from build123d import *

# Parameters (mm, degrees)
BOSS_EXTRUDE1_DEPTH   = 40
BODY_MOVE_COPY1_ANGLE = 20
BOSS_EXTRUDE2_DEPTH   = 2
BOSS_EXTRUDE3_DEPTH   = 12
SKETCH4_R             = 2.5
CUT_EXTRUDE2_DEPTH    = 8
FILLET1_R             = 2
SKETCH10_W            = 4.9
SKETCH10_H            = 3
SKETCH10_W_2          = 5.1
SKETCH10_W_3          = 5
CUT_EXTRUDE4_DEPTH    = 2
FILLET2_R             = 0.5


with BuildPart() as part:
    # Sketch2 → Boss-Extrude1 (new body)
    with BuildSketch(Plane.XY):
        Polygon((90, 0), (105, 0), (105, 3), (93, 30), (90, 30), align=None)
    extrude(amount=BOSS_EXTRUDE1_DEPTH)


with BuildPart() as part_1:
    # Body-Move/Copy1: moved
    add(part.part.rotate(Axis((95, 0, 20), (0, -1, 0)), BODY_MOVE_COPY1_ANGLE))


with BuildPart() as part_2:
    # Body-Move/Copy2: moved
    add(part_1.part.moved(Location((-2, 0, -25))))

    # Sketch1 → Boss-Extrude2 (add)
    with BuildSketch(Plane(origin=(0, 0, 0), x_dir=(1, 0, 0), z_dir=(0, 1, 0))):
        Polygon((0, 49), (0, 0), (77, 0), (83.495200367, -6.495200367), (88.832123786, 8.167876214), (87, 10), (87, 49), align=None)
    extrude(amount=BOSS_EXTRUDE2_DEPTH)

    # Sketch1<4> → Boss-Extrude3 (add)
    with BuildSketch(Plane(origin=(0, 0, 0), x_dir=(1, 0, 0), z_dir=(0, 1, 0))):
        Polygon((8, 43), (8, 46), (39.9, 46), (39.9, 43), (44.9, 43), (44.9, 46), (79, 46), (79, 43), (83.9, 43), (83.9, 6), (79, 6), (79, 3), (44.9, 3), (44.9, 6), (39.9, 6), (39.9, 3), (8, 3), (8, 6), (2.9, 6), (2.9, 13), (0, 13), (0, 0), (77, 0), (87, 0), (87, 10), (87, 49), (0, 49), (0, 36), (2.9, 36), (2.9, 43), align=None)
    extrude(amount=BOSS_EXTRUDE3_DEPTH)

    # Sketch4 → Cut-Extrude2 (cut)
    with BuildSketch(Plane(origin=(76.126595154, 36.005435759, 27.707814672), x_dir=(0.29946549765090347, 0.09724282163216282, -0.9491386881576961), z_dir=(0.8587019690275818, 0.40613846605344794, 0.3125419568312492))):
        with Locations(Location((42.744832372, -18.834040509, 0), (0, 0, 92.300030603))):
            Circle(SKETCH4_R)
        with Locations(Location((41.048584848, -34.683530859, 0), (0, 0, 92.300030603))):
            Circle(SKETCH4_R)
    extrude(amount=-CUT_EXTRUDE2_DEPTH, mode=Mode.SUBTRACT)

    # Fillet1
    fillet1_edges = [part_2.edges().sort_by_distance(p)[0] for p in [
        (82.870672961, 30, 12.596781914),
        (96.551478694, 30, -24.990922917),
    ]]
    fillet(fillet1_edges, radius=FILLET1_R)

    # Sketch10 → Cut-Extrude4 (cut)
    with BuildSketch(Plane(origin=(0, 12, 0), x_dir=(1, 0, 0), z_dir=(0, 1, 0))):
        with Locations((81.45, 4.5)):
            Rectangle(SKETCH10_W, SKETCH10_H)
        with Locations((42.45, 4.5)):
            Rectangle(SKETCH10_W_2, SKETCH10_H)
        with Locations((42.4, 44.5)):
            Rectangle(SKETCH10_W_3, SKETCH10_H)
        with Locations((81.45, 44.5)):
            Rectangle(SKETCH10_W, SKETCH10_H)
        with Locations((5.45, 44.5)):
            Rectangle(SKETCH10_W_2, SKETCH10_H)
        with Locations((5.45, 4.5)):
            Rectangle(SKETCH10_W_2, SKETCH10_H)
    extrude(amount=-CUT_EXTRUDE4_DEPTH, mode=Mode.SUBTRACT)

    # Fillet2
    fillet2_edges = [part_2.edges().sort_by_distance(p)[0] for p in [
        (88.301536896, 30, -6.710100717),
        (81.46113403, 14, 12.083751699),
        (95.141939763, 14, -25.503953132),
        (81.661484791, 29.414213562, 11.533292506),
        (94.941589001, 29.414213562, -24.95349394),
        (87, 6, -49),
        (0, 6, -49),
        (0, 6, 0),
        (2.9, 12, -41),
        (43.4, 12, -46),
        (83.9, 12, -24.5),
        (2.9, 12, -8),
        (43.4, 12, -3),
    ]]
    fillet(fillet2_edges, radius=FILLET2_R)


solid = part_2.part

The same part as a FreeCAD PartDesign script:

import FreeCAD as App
import Part
import Sketcher
from FreeCAD import Vector
Q = App.Units.Quantity


def edges_at(feature, points):
    """Names of the edges that pass closest to the given points."""
    edges = feature.Shape.Edges
    near = lambda p: min(range(len(edges)), key=lambda i: edges[i].distToShape(Part.Vertex(*p))[0])
    return sorted({f"Edge{near(p) + 1}" for p in points})

doc = App.newDocument("Part")
body = doc.addObject("PartDesign::Body", "Body")

sketch1 = body.newObject("Sketcher::SketchObject", "Sketch")
sketch1.AttachmentSupport = (doc.getObject("XY_Plane"), [""])
sketch1.MapMode = "FlatFace"
sketch1.addGeometry([
    Part.LineSegment(Vector(90, 0, 0), Vector(105, 0, 0)),
    Part.LineSegment(Vector(105, 0, 0), Vector(105, 3, 0)),
    Part.LineSegment(Vector(105, 3, 0), Vector(93, 30, 0)),
    Part.LineSegment(Vector(93, 30, 0), Vector(90, 30, 0)),
    Part.LineSegment(Vector(90, 30, 0), Vector(90, 0, 0)),
], False)
sketch1.addConstraint([
    Sketcher.Constraint("Coincident", 0, 2, 1, 1),
    Sketcher.Constraint("Coincident", 1, 2, 2, 1),
    Sketcher.Constraint("Coincident", 2, 2, 3, 1),
    Sketcher.Constraint("Coincident", 3, 2, 4, 1),
    Sketcher.Constraint("Coincident", 4, 2, 0, 1),
    Sketcher.Constraint("Horizontal", 0),
    Sketcher.Constraint("Vertical", 1),
    Sketcher.Constraint("Horizontal", 3),
    Sketcher.Constraint("Vertical", 4),
    Sketcher.Constraint("PointOnObject", 0, 2, -1),
    Sketcher.Constraint("Equal", 3, 1),
    Sketcher.Constraint("DistanceX", 0, 1, 0, 2, Q("15 mm")),
    Sketcher.Constraint("DistanceX", 3, 2, 3, 1, Q("3 mm")),
    Sketcher.Constraint("DistanceY", 4, 2, 4, 1, Q("30 mm")),
    Sketcher.Constraint("DistanceX", -1, 1, 0, 2, Q("105 mm")),
])
pad1 = body.newObject("PartDesign::Pad", "Pad")
pad1.Profile = sketch1
pad1.Length = 40
body2 = doc.addObject("PartDesign::Body", "Body001")
doc.recompute()

body.Placement = App.Placement(Vector(12.569604, 0, -31.285766), App.Rotation(Vector(0, -1, 0), 20))
boolean = body2.newObject("PartDesign::Boolean", "Boolean")
boolean.Type = "Fuse"
boolean.addObjects([body])
body3 = doc.addObject("PartDesign::Body", "Body002")
doc.recompute()

body2.Placement = App.Placement(Vector(-2, 0, -25), App.Rotation(Vector(0, 0, 1), 0))
boolean2 = body3.newObject("PartDesign::Boolean", "Boolean001")
boolean2.Type = "Fuse"
boolean2.addObjects([body2])

sketch2 = body3.newObject("Sketcher::SketchObject", "Sketch001")
sketch2.AttachmentSupport = (doc.getObject("XZ_Plane002"), [""])
sketch2.MapMode = "FlatFace"
sketch2.addGeometry([
    Part.LineSegment(Vector(0, -49, 0), Vector(0, 0, 0)),
    Part.LineSegment(Vector(0, 0, 0), Vector(77, 0, 0)),
    Part.LineSegment(Vector(77, 0, 0), Vector(83.5, 6.5, 0)),
    Part.LineSegment(Vector(83.5, 6.5, 0), Vector(88.8, -8.2, 0)),
    Part.LineSegment(Vector(88.8, -8.2, 0), Vector(87, -10, 0)),
    Part.LineSegment(Vector(87, -10, 0), Vector(87, -49, 0)),
    Part.LineSegment(Vector(87, -49, 0), Vector(0, -49, 0)),
], False)
sketch2.addConstraint([
    Sketcher.Constraint("Coincident", 0, 2, 1, 1),
    Sketcher.Constraint("Coincident", 1, 2, 2, 1),
    Sketcher.Constraint("Coincident", 2, 2, 3, 1),
    Sketcher.Constraint("Coincident", 3, 2, 4, 1),
    Sketcher.Constraint("Coincident", 4, 2, 5, 1),
    Sketcher.Constraint("Coincident", 5, 2, 6, 1),
    Sketcher.Constraint("Coincident", 6, 2, 0, 1),
    Sketcher.Constraint("Vertical", 0),
    Sketcher.Constraint("Horizontal", 1),
    Sketcher.Constraint("Vertical", 5),
    Sketcher.Constraint("Horizontal", 6),
    Sketcher.Constraint("Coincident", 0, 2, -1, 1),
    Sketcher.Constraint("Parallel", 2, 4),
    Sketcher.Constraint("DistanceX", 1, 1, 1, 2, Q("77 mm")),
    Sketcher.Constraint("DistanceX", 6, 2, 6, 1, Q("87 mm")),
    Sketcher.Constraint("DistanceY", 0, 1, 0, 2, Q("49 mm")),
    Sketcher.Constraint("DistanceY", 5, 2, 5, 1, Q("39 mm")),
    Sketcher.Constraint("Angle", 2, Q("45 deg")),
    Sketcher.Constraint("Angle", 3, Q("-70 deg")),
    Sketcher.Constraint("Distance", 2, Q("9.1856 mm")),
])
pad2 = body3.newObject("PartDesign::Pad", "Pad001")
pad2.Profile = sketch2
pad2.Length = 2
pad2.Reversed = True

sketch3 = body3.newObject("Sketcher::SketchObject", "Sketch002")
sketch3.AttachmentSupport = (doc.getObject("XZ_Plane002"), [""])
sketch3.MapMode = "FlatFace"
sketch3.addGeometry([
    Part.LineSegment(Vector(8, -43, 0), Vector(8, -46, 0)),
    Part.LineSegment(Vector(8, -46, 0), Vector(39.9, -46, 0)),
    Part.LineSegment(Vector(39.9, -46, 0), Vector(39.9, -43, 0)),
    Part.LineSegment(Vector(39.9, -43, 0), Vector(44.9, -43, 0)),
    Part.LineSegment(Vector(44.9, -43, 0), Vector(44.9, -46, 0)),
    Part.LineSegment(Vector(44.9, -46, 0), Vector(79, -46, 0)),
    Part.LineSegment(Vector(79, -46, 0), Vector(79, -43, 0)),
    Part.LineSegment(Vector(79, -43, 0), Vector(83.9, -43, 0)),
    Part.LineSegment(Vector(83.9, -43, 0), Vector(83.9, -6, 0)),
    Part.LineSegment(Vector(83.9, -6, 0), Vector(79, -6, 0)),
    Part.LineSegment(Vector(79, -6, 0), Vector(79, -3, 0)),
    Part.LineSegment(Vector(79, -3, 0), Vector(44.9, -3, 0)),
    Part.LineSegment(Vector(44.9, -3, 0), Vector(44.9, -6, 0)),
    Part.LineSegment(Vector(44.9, -6, 0), Vector(39.9, -6, 0)),
    Part.LineSegment(Vector(39.9, -6, 0), Vector(39.9, -3, 0)),
    Part.LineSegment(Vector(39.9, -3, 0), Vector(8, -3, 0)),
    Part.LineSegment(Vector(8, -3, 0), Vector(8, -6, 0)),
    Part.LineSegment(Vector(8, -6, 0), Vector(2.9, -6, 0)),
    Part.LineSegment(Vector(2.9, -6, 0), Vector(2.9, -13, 0)),
    Part.LineSegment(Vector(2.9, -13, 0), Vector(0, -13, 0)),
    Part.LineSegment(Vector(0, -13, 0), Vector(0, 0, 0)),
    Part.LineSegment(Vector(0, 0, 0), Vector(87, 0, 0)),
    Part.LineSegment(Vector(87, 0, 0), Vector(87, -49, 0)),
    Part.LineSegment(Vector(87, -49, 0), Vector(0, -49, 0)),
    Part.LineSegment(Vector(0, -49, 0), Vector(0, -36, 0)),
    Part.LineSegment(Vector(0, -36, 0), Vector(2.9, -36, 0)),
    Part.LineSegment(Vector(2.9, -36, 0), Vector(2.9, -43, 0)),
    Part.LineSegment(Vector(2.9, -43, 0), Vector(8, -43, 0)),
], False)
sketch3.addConstraint([
    Sketcher.Constraint("Coincident", 0, 2, 1, 1),
    Sketcher.Constraint("Coincident", 1, 2, 2, 1),
    Sketcher.Constraint("Coincident", 2, 2, 3, 1),
    Sketcher.Constraint("Coincident", 3, 2, 4, 1),
    Sketcher.Constraint("Coincident", 4, 2, 5, 1),
    Sketcher.Constraint("Coincident", 5, 2, 6, 1),
    Sketcher.Constraint("Coincident", 6, 2, 7, 1),
    Sketcher.Constraint("Coincident", 7, 2, 8, 1),
    Sketcher.Constraint("Coincident", 8, 2, 9, 1),
    Sketcher.Constraint("Coincident", 9, 2, 10, 1),
    Sketcher.Constraint("Coincident", 10, 2, 11, 1),
    Sketcher.Constraint("Coincident", 11, 2, 12, 1),
    Sketcher.Constraint("Coincident", 12, 2, 13, 1),
    Sketcher.Constraint("Coincident", 13, 2, 14, 1),
    Sketcher.Constraint("Coincident", 14, 2, 15, 1),
    Sketcher.Constraint("Coincident", 15, 2, 16, 1),
    Sketcher.Constraint("Coincident", 16, 2, 17, 1),
    Sketcher.Constraint("Coincident", 17, 2, 18, 1),
    Sketcher.Constraint("Coincident", 18, 2, 19, 1),
    Sketcher.Constraint("Coincident", 19, 2, 20, 1),
    Sketcher.Constraint("Coincident", 20, 2, 21, 1),
    Sketcher.Constraint("Coincident", 21, 2, 22, 1),
    Sketcher.Constraint("Coincident", 22, 2, 23, 1),
    Sketcher.Constraint("Coincident", 23, 2, 24, 1),
    Sketcher.Constraint("Coincident", 24, 2, 25, 1),
    Sketcher.Constraint("Coincident", 25, 2, 26, 1),
    Sketcher.Constraint("Coincident", 26, 2, 27, 1),
    Sketcher.Constraint("Coincident", 27, 2, 0, 1),
    Sketcher.Constraint("Vertical", 0),
    Sketcher.Constraint("Horizontal", 1),
    Sketcher.Constraint("Vertical", 2),
    Sketcher.Constraint("Horizontal", 3),
    Sketcher.Constraint("Vertical", 4),
    Sketcher.Constraint("Horizontal", 5),
    Sketcher.Constraint("Vertical", 6),
    Sketcher.Constraint("Horizontal", 7),
    Sketcher.Constraint("Vertical", 8),
    Sketcher.Constraint("Horizontal", 9),
    Sketcher.Constraint("Vertical", 10),
    Sketcher.Constraint("Horizontal", 11),
    Sketcher.Constraint("Vertical", 12),
    Sketcher.Constraint("Horizontal", 13),
    Sketcher.Constraint("Vertical", 14),
    Sketcher.Constraint("Horizontal", 15),
    Sketcher.Constraint("Vertical", 16),
    Sketcher.Constraint("Horizontal", 17),
    Sketcher.Constraint("Vertical", 18),
    Sketcher.Constraint("Horizontal", 19),
    Sketcher.Constraint("Vertical", 20),
    Sketcher.Constraint("Horizontal", 21),
    Sketcher.Constraint("Vertical", 22),
    Sketcher.Constraint("Horizontal", 23),
    Sketcher.Constraint("Vertical", 24),
    Sketcher.Constraint("Horizontal", 25),
    Sketcher.Constraint("Vertical", 26),
    Sketcher.Constraint("Horizontal", 27),
    Sketcher.Constraint("Coincident", 20, 2, -1, 1),
    Sketcher.Constraint("PointOnObject", 23, 2, -2),
    Sketcher.Constraint("Horizontal", 1, 2, 4, 2),
    Sketcher.Constraint("Horizontal", 3, 2, 6, 2),
    Sketcher.Constraint("Horizontal", 9, 2, 12, 2),
    Sketcher.Constraint("Horizontal", 11, 2, 14, 2),
    Sketcher.Constraint("Horizontal", 13, 2, 16, 2),
    Sketcher.Constraint("Horizontal", 7, 2, 26, 2),
    Sketcher.Constraint("Vertical", 6, 2, 9, 2),
    Sketcher.Constraint("Vertical", 4, 2, 11, 2),
    Sketcher.Constraint("Vertical", 2, 2, 13, 2),
    Sketcher.Constraint("Vertical", 0, 2, 15, 2),
    Sketcher.Constraint("Vertical", 18, 2, 25, 2),
    Sketcher.Constraint("Equal", 6, 10),
    Sketcher.Constraint("Equal", 20, 24),
    Sketcher.Constraint("Equal", 18, 26),
    Sketcher.Constraint("DistanceX", 3, 1, 3, 2, Q("5 mm")),
    Sketcher.Constraint("DistanceX", 21, 1, 21, 2, Q("87 mm")),
    Sketcher.Constraint("DistanceY", 0, 2, 0, 1, Q("3 mm")),
    Sketcher.Constraint("DistanceY", 8, 1, 8, 2, Q("37 mm")),
    Sketcher.Constraint("DistanceY", 18, 2, 18, 1, Q("7 mm")),
    Sketcher.Constraint("DistanceY", 20, 1, 20, 2, Q("13 mm")),
    Sketcher.Constraint("DistanceX", 1, 1, 1, 2, Q("31.9 mm")),
    Sketcher.Constraint("DistanceX", 5, 1, 5, 2, Q("34.1 mm")),
    Sketcher.Constraint("DistanceX", 7, 1, 7, 2, Q("4.9 mm")),
    Sketcher.Constraint("DistanceX", 17, 2, 17, 1, Q("5.1 mm")),
    Sketcher.Constraint("DistanceX", 19, 2, 19, 1, Q("2.9 mm")),
])
pad3 = body3.newObject("PartDesign::Pad", "Pad002")
pad3.Profile = sketch3
pad3.Length = 12
pad3.Reversed = True

sketch4 = body3.newObject("Sketcher::SketchObject", "Sketch003")
sketch4.Placement = App.Placement(Vector(76.126595, 36.005436, 27.707815), App.Rotation(Vector(0.299465498, 0.097242822, -0.949138688), Vector(-0.415874193, 0.908622793, -0.038121855), Vector(0.858701969, 0.406138466, 0.312541957), "ZXY"))
sketch4.addGeometry([
    Part.Circle(Vector(42.7, -18.8, 0), Vector(0, 0, 1), 2.5),
    Part.Circle(Vector(41, -34.7, 0), Vector(0, 0, 1), 2.5),
], False)
sketch4.addConstraint([
    Sketcher.Constraint("Equal", 0, 1),
    Sketcher.Constraint("Diameter", 0, Q("5 mm")),
    Sketcher.Constraint("DistanceY", 0, 3, -1, 1, Q("18.834041 mm")),
    Sketcher.Constraint("DistanceY", 1, 3, -1, 1, Q("34.683531 mm")),
    Sketcher.Constraint("DistanceX", -1, 1, 0, 3, Q("42.744832 mm")),
    Sketcher.Constraint("DistanceX", -1, 1, 1, 3, Q("41.048585 mm")),
])
pocket1 = body3.newObject("PartDesign::Pocket", "Pocket")
pocket1.Profile = sketch4
pocket1.Length = 8
doc.recompute()

fillet = body3.newObject("PartDesign::Fillet", "Fillet")
fillet.Base = (pocket1, edges_at(pocket1, [(82.871, 30, 12.597), (96.551, 30, -24.991)]))
fillet.Radius = 2

sketch5 = body3.newObject("Sketcher::SketchObject", "Sketch004")
sketch5.AttachmentSupport = (doc.getObject("XZ_Plane002"), [""])
sketch5.MapMode = "FlatFace"
sketch5.AttachmentOffset = App.Placement(Vector(0, 0, -12), App.Rotation())
sketch5.addGeometry([
    Part.LineSegment(Vector(79, -6, 0), Vector(79, -3, 0)),
    Part.LineSegment(Vector(79, -3, 0), Vector(83.9, -3, 0)),
    Part.LineSegment(Vector(83.9, -3, 0), Vector(83.9, -6, 0)),
    Part.LineSegment(Vector(83.9, -6, 0), Vector(79, -6, 0)),
    Part.LineSegment(Vector(39.9, -6, 0), Vector(39.9, -3, 0)),
    Part.LineSegment(Vector(39.9, -3, 0), Vector(45, -3, 0)),
    Part.LineSegment(Vector(45, -3, 0), Vector(45, -6, 0)),
    Part.LineSegment(Vector(45, -6, 0), Vector(39.9, -6, 0)),
    Part.LineSegment(Vector(39.9, -46, 0), Vector(39.9, -43, 0)),
    Part.LineSegment(Vector(39.9, -43, 0), Vector(44.9, -43, 0)),
    Part.LineSegment(Vector(44.9, -43, 0), Vector(44.9, -46, 0)),
    Part.LineSegment(Vector(44.9, -46, 0), Vector(39.9, -46, 0)),
    Part.LineSegment(Vector(79, -46, 0), Vector(79, -43, 0)),
    Part.LineSegment(Vector(79, -43, 0), Vector(83.9, -43, 0)),
    Part.LineSegment(Vector(83.9, -43, 0), Vector(83.9, -46, 0)),
    Part.LineSegment(Vector(83.9, -46, 0), Vector(79, -46, 0)),
    Part.LineSegment(Vector(2.9, -46, 0), Vector(2.9, -43, 0)),
    Part.LineSegment(Vector(2.9, -43, 0), Vector(8, -43, 0)),
    Part.LineSegment(Vector(8, -43, 0), Vector(8, -46, 0)),
    Part.LineSegment(Vector(8, -46, 0), Vector(2.9, -46, 0)),
    Part.LineSegment(Vector(2.9, -6, 0), Vector(2.9, -3, 0)),
    Part.LineSegment(Vector(2.9, -3, 0), Vector(8, -3, 0)),
    Part.LineSegment(Vector(8, -3, 0), Vector(8, -6, 0)),
    Part.LineSegment(Vector(8, -6, 0), Vector(2.9, -6, 0)),
], False)
sketch5.addConstraint([
    Sketcher.Constraint("Coincident", 0, 2, 1, 1),
    Sketcher.Constraint("Coincident", 1, 2, 2, 1),
    Sketcher.Constraint("Coincident", 2, 2, 3, 1),
    Sketcher.Constraint("Coincident", 3, 2, 0, 1),
    Sketcher.Constraint("Coincident", 4, 2, 5, 1),
    Sketcher.Constraint("Coincident", 5, 2, 6, 1),
    Sketcher.Constraint("Coincident", 6, 2, 7, 1),
    Sketcher.Constraint("Coincident", 7, 2, 4, 1),
    Sketcher.Constraint("Coincident", 8, 2, 9, 1),
    Sketcher.Constraint("Coincident", 9, 2, 10, 1),
    Sketcher.Constraint("Coincident", 10, 2, 11, 1),
    Sketcher.Constraint("Coincident", 11, 2, 8, 1),
    Sketcher.Constraint("Coincident", 12, 2, 13, 1),
    Sketcher.Constraint("Coincident", 13, 2, 14, 1),
    Sketcher.Constraint("Coincident", 14, 2, 15, 1),
    Sketcher.Constraint("Coincident", 15, 2, 12, 1),
    Sketcher.Constraint("Coincident", 16, 2, 17, 1),
    Sketcher.Constraint("Coincident", 17, 2, 18, 1),
    Sketcher.Constraint("Coincident", 18, 2, 19, 1),
    Sketcher.Constraint("Coincident", 19, 2, 16, 1),
    Sketcher.Constraint("Coincident", 20, 2, 21, 1),
    Sketcher.Constraint("Coincident", 21, 2, 22, 1),
    Sketcher.Constraint("Coincident", 22, 2, 23, 1),
    Sketcher.Constraint("Coincident", 23, 2, 20, 1),
    Sketcher.Constraint("Vertical", 0),
    Sketcher.Constraint("Horizontal", 1),
    Sketcher.Constraint("Vertical", 2),
    Sketcher.Constraint("Horizontal", 3),
    Sketcher.Constraint("Vertical", 4),
    Sketcher.Constraint("Horizontal", 5),
    Sketcher.Constraint("Vertical", 6),
    Sketcher.Constraint("Horizontal", 7),
    Sketcher.Constraint("Vertical", 8),
    Sketcher.Constraint("Horizontal", 9),
    Sketcher.Constraint("Vertical", 10),
    Sketcher.Constraint("Horizontal", 11),
    Sketcher.Constraint("Vertical", 12),
    Sketcher.Constraint("Horizontal", 13),
    Sketcher.Constraint("Vertical", 14),
    Sketcher.Constraint("Horizontal", 15),
    Sketcher.Constraint("Vertical", 16),
    Sketcher.Constraint("Horizontal", 17),
    Sketcher.Constraint("Vertical", 18),
    Sketcher.Constraint("Horizontal", 19),
    Sketcher.Constraint("Vertical", 20),
    Sketcher.Constraint("Horizontal", 21),
    Sketcher.Constraint("Vertical", 22),
    Sketcher.Constraint("Horizontal", 23),
    Sketcher.Constraint("Horizontal", 1, 2, 4, 2),
    Sketcher.Constraint("Horizontal", 3, 2, 6, 2),
    Sketcher.Constraint("Horizontal", 9, 2, 12, 2),
    Sketcher.Constraint("Horizontal", 11, 2, 14, 2),
    Sketcher.Constraint("Horizontal", 13, 2, 16, 2),
    Sketcher.Constraint("Horizontal", 15, 2, 18, 2),
    Sketcher.Constraint("Horizontal", 5, 2, 20, 2),
    Sketcher.Constraint("Horizontal", 7, 2, 22, 2),
    Sketcher.Constraint("Vertical", 7, 2, 8, 2),
    Sketcher.Constraint("Vertical", 3, 2, 12, 2),
    Sketcher.Constraint("Vertical", 2, 2, 13, 2),
    Sketcher.Constraint("Vertical", 19, 2, 20, 2),
    Sketcher.Constraint("Vertical", 18, 2, 21, 2),
    Sketcher.Constraint("Equal", 7, 17),
    Sketcher.Constraint("Equal", 6, 8),
    Sketcher.Constraint("DistanceX", 9, 1, 9, 2, Q("5 mm")),
    Sketcher.Constraint("DistanceY", 0, 1, 0, 2, Q("3 mm")),
    Sketcher.Constraint("DistanceX", 1, 1, 1, 2, Q("4.9 mm")),
    Sketcher.Constraint("DistanceX", 5, 1, 5, 2, Q("5.1 mm")),
    Sketcher.Constraint("DistanceX", -1, 1, 0, 2, Q("79 mm")),
    Sketcher.Constraint("DistanceY", 0, 2, -1, 1, Q("3 mm")),
    Sketcher.Constraint("DistanceX", -1, 1, 5, 2, Q("45 mm")),
    Sketcher.Constraint("DistanceY", 8, 2, -1, 1, Q("43 mm")),
    Sketcher.Constraint("DistanceX", -1, 1, 17, 2, Q("8 mm")),
])
pocket2 = body3.newObject("PartDesign::Pocket", "Pocket001")
pocket2.Profile = sketch5
pocket2.Length = 2
pocket2.Reversed = True
doc.recompute()

fillet2 = body3.newObject("PartDesign::Fillet", "Fillet001")
fillet2.Base = (pocket2, edges_at(pocket2, [
    (88.302, 30, -6.71),
    (81.461, 14, 12.084),
    (95.142, 14, -25.504),
    (81.661, 29.414, 11.533),
    (94.942, 29.414, -24.953),
    (87, 6, -49),
    (0, 6, -49),
    (0, 6, 0),
    (2.9, 12, -41),
    (43.4, 12, -46),
    (83.9, 12, -24.5),
    (2.9, 12, -8),
    (43.4, 12, -3),
]))
fillet2.Radius = 0.5

doc.recompute()
